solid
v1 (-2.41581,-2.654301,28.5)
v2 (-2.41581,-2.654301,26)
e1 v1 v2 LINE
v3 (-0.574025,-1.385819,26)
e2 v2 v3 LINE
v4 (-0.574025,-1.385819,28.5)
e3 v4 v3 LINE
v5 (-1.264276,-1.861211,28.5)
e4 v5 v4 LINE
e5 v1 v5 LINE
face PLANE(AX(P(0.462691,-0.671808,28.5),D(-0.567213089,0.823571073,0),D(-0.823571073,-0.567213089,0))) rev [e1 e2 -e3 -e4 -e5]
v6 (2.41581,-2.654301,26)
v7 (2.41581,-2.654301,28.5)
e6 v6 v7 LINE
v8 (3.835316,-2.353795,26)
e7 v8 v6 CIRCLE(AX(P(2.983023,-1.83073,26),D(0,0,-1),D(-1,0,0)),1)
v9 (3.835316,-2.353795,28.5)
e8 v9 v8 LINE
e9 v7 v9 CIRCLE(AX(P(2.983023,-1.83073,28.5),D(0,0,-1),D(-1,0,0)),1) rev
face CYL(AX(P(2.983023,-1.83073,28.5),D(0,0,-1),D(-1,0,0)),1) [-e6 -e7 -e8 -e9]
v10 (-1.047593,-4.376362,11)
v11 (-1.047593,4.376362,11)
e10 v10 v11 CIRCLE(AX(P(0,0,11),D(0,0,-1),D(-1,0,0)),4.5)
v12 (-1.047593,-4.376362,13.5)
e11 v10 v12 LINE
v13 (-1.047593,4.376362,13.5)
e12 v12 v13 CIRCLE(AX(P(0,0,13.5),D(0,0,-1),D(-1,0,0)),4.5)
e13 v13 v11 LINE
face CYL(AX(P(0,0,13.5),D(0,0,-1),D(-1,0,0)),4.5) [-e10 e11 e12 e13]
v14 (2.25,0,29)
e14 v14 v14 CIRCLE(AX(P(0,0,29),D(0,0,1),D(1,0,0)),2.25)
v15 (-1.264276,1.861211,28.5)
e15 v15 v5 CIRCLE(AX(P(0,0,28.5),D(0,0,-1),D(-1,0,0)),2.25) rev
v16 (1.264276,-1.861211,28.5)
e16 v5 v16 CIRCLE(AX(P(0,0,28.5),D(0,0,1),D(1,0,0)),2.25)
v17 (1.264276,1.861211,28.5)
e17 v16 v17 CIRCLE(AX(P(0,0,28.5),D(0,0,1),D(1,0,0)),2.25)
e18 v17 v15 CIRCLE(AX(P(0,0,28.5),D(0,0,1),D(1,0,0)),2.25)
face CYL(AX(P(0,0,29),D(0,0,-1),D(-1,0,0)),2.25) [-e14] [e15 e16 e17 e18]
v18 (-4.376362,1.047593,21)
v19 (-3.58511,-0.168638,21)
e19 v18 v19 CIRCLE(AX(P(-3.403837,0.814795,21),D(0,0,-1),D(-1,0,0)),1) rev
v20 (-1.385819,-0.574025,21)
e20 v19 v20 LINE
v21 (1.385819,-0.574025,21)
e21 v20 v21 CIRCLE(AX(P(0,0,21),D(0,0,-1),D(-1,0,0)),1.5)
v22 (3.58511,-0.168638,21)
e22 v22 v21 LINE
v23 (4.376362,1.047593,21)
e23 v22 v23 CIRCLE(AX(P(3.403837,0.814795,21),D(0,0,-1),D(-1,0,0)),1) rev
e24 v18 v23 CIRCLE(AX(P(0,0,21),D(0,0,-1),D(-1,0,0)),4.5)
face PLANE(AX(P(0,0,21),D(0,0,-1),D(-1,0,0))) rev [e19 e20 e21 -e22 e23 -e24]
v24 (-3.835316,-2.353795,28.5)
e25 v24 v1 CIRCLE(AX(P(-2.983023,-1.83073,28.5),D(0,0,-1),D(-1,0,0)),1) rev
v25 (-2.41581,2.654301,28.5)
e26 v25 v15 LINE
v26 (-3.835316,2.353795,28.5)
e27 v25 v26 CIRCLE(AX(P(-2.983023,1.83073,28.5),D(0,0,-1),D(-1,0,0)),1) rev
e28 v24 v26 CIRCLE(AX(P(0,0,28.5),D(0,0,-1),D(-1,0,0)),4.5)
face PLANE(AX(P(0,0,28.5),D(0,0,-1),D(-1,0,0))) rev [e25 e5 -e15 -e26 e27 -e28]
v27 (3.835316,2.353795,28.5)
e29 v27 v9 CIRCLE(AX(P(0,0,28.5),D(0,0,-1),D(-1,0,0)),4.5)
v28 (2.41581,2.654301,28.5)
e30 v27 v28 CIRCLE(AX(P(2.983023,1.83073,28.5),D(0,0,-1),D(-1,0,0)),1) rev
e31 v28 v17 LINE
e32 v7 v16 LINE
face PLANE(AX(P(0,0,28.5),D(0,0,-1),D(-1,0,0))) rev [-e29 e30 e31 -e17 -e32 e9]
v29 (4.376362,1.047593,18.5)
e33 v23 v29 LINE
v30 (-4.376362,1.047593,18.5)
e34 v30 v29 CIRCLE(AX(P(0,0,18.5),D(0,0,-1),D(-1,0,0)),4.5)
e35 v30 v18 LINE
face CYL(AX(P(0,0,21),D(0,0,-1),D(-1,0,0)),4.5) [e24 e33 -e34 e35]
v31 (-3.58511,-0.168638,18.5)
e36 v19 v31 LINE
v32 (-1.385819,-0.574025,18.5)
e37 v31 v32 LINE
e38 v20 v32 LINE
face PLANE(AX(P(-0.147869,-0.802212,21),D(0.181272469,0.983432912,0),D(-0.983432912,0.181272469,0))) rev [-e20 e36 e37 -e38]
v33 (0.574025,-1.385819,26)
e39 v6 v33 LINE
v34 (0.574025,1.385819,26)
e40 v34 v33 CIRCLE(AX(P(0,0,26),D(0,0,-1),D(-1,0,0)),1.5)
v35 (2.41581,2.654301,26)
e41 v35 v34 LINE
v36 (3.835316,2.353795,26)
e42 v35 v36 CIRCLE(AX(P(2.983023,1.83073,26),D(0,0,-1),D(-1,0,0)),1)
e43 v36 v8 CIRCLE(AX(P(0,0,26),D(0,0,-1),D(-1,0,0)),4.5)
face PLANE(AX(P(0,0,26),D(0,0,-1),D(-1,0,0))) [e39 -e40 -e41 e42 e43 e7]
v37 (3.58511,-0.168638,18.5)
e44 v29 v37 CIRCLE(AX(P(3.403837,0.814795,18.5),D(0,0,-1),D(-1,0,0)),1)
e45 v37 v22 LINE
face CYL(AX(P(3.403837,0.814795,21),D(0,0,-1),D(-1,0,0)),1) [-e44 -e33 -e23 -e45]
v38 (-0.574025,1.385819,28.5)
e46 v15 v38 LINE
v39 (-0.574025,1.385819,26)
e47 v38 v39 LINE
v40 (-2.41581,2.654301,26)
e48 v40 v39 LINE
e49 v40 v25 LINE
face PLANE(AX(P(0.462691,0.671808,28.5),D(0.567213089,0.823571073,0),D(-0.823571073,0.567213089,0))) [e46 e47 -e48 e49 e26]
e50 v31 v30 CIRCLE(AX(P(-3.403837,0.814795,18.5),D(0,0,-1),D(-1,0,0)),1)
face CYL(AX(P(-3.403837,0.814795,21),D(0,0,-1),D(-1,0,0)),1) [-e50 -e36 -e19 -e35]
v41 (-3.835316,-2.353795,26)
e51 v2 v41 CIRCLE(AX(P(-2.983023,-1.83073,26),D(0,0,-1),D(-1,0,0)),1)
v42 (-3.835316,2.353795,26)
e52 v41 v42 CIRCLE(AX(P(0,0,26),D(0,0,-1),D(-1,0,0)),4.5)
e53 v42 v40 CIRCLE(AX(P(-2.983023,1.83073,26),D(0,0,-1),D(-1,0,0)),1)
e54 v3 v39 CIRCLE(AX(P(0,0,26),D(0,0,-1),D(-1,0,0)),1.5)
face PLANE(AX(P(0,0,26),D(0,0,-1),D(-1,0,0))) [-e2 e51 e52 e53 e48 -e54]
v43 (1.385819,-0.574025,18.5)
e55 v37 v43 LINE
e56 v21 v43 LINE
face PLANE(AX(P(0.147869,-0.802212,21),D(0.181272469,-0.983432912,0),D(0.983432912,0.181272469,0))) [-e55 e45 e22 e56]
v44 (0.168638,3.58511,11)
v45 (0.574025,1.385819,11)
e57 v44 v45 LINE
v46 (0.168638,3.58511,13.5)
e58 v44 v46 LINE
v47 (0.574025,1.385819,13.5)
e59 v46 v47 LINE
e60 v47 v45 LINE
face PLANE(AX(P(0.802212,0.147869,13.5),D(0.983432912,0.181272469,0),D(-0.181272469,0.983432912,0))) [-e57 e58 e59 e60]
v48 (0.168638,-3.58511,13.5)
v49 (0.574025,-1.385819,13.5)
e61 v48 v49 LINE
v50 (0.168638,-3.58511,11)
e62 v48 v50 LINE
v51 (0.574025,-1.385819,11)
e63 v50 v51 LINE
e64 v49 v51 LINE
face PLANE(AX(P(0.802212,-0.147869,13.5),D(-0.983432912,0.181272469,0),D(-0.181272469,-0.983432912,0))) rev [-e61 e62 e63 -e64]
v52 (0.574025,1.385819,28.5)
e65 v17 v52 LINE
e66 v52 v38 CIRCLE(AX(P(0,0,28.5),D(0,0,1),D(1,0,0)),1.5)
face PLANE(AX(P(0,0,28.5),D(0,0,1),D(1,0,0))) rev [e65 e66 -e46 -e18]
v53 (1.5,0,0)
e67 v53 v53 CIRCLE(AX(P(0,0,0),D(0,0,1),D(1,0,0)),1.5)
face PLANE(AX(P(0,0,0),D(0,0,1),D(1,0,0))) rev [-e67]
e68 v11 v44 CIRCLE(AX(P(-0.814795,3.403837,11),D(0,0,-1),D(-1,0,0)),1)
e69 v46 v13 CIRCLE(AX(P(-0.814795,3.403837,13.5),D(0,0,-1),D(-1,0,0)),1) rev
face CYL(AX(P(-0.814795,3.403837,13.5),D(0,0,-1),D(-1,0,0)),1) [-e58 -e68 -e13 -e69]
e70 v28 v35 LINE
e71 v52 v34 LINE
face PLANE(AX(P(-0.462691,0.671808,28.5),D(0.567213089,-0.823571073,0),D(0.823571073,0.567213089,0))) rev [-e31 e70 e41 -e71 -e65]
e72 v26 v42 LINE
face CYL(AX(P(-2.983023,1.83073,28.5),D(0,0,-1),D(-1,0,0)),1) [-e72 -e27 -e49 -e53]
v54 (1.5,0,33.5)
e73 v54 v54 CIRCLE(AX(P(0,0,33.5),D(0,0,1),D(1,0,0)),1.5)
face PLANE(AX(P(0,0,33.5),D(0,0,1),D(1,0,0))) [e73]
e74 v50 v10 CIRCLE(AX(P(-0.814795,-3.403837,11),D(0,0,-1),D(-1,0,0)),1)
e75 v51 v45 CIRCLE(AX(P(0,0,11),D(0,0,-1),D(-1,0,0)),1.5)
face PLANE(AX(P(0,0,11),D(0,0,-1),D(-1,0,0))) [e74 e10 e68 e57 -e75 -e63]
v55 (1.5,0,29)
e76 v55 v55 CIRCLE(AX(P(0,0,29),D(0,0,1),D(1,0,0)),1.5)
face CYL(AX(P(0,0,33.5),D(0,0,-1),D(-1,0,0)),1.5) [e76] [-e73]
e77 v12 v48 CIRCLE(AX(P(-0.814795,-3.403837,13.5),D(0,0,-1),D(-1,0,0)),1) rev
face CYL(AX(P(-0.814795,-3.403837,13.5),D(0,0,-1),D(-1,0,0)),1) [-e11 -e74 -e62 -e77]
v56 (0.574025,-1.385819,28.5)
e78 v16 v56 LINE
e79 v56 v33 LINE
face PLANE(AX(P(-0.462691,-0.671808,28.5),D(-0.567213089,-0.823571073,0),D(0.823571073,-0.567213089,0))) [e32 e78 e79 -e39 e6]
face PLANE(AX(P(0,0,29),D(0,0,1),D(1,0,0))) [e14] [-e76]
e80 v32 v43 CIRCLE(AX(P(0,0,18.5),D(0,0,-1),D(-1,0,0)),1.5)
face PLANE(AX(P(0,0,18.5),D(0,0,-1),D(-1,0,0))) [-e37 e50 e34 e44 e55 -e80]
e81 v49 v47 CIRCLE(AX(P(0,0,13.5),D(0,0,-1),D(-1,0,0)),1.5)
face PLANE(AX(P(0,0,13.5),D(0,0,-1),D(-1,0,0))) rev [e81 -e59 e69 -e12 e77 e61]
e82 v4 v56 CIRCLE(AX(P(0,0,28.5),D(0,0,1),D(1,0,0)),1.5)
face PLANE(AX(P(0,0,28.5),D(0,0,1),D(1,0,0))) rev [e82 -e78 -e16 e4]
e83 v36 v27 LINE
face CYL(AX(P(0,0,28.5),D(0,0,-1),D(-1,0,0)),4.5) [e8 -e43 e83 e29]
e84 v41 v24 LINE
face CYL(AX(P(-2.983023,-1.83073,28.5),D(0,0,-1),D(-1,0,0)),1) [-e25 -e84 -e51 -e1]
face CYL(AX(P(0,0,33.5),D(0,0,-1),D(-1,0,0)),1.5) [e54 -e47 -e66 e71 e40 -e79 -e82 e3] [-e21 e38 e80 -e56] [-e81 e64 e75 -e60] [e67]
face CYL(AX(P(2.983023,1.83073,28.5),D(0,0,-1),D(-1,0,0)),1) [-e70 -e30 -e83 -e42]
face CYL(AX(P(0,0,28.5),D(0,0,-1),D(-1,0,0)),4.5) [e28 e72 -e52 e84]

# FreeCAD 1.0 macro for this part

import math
import FreeCAD as App
import Part
import Sketcher
from FreeCAD import Vector


def edges_at(feature, points):
    """Names of the edges that pass closest to the given points."""
    edges = feature.Shape.Edges
    near = lambda p: min(range(len(edges)), key=lambda i: edges[i].distToShape(Part.Vertex(*p))[0])
    return sorted({f"Edge{near(p) + 1}" for p in points})

doc = App.newDocument("Part")
body = doc.addObject("PartDesign::Body", "Body")

# Sketch on XY plane
sketch1 = body.newObject("Sketcher::SketchObject", "Sketch")
sketch1.AttachmentSupport = (doc.getObject("XY_Plane"), [""])
sketch1.MapMode = "FlatFace"
sketch1.addGeometry(Part.Circle(Vector(0, 0, 0), Vector(0, 0, 1), 1.5), False)
sketch1.addConstraint([
    Sketcher.Constraint("Coincident", 0, 3, -1, 1),
    Sketcher.Constraint("Diameter", 0, 3.0),
])
pad1 = body.newObject("PartDesign::Pad", "Pad")
pad1.Profile = sketch1
pad1.Length = 33.5

# Sketch on XY plane
sketch2 = body.newObject("Sketcher::SketchObject", "Sketch001")
sketch2.AttachmentSupport = (doc.getObject("XY_Plane"), [""])
sketch2.MapMode = "FlatFace"
sketch2.AttachmentOffset = App.Placement(Vector(0, 0, 11), App.Rotation())
sketch2.addGeometry([
    Part.ArcOfCircle(Part.Circle(Vector(0, 0, 0), Vector(0, 0, 1), 4.5), math.radians(90), math.radians(180)),  # 0
    Part.LineSegment(Vector(0, 4.5, 0), Vector(0.6, 1.4, 0)),  # 1
    Part.ArcOfCircle(Part.Circle(Vector(0, 0, 0), Vector(0, 0, 1), 1.5), math.radians(68), math.radians(180)),  # 2
    Part.ArcOfCircle(Part.Circle(Vector(0, 0, 0), Vector(0, 0, 1), 1.5), math.radians(180), math.radians(292)),  # 3
    Part.LineSegment(Vector(0.6, -1.4, 0), Vector(0, -4.5, 0)),  # 4
    Part.ArcOfCircle(Part.Circle(Vector(0, 0, 0), Vector(0, 0, 1), 4.5), math.radians(-180), math.radians(-90)),  # 5
], False)
sketch2.addConstraint([
    Sketcher.Constraint("Coincident", 0, 1, 1, 1),
    Sketcher.Constraint("Coincident", 1, 2, 2, 1),
    Sketcher.Constraint("Tangent", 2, 2, 3, 1),
    Sketcher.Constraint("Coincident", 3, 2, 4, 1),
    Sketcher.Constraint("Coincident", 4, 2, 5, 2),
    Sketcher.Constraint("Tangent", 5, 1, 0, 2),
    Sketcher.Constraint("Coincident", 0, 3, -1, 1),
    Sketcher.Constraint("Coincident", 2, 3, -1, 1),
    Sketcher.Constraint("Equal", 2, 3),
    Sketcher.Constraint("Equal", 0, 5),
    Sketcher.Constraint("PointOnObject", 0, 1, -2),
    Sketcher.Constraint("PointOnObject", 2, 2, -1),
    Sketcher.Constraint("PointOnObject", 4, 2, -2),
    Sketcher.Constraint("PointOnObject", 5, 1, -1),
    Sketcher.Constraint("Vertical", 1, 2, 3, 2),
    Sketcher.Constraint("Radius", 0, 4.5),
    Sketcher.Constraint("Radius", 2, 1.5),
    Sketcher.Constraint("DistanceY", -1, 1, 1, 2, 1.385819),
])
pad2 = body.newObject("PartDesign::Pad", "Pad001")
pad2.Profile = sketch2
pad2.Length = 2.5

# Sketch on XY plane
sketch3 = body.newObject("Sketcher::SketchObject", "Sketch002")
sketch3.AttachmentSupport = (doc.getObject("XY_Plane"), [""])
sketch3.MapMode = "FlatFace"
sketch3.AttachmentOffset = App.Placement(Vector(0, 0, 18.5), App.Rotation())
sketch3.addGeometry([
    Part.ArcOfCircle(Part.Circle(Vector(0, 0, 0), Vector(0, 0, 1), 4.5), math.radians(0), math.radians(180)),  # 0
    Part.LineSegment(Vector(4.5, 0, 0), Vector(1.4, -0.6, 0)),  # 1
    Part.ArcOfCircle(Part.Circle(Vector(0, 0, 0), Vector(0, 0, 1), 1.5), math.radians(-23), math.radians(180)),  # 2
    Part.ArcOfCircle(Part.Circle(Vector(0, 0, 0), Vector(0, 0, 1), 1.5), math.radians(180), math.radians(203)),  # 3
    Part.LineSegment(Vector(-1.4, -0.6, 0), Vector(-4.5, 0, 0)),  # 4
], False)
sketch3.addConstraint([
    Sketcher.Constraint("Coincident", 0, 1, 1, 1),
    Sketcher.Constraint("Coincident", 1, 2, 2, 1),
    Sketcher.Constraint("Tangent", 2, 2, 3, 1),
    Sketcher.Constraint("Coincident", 3, 2, 4, 1),
    Sketcher.Constraint("Coincident", 4, 2, 0, 2),
    Sketcher.Constraint("Coincident", 0, 3, -1, 1),
    Sketcher.Constraint("Coincident", 2, 3, -1, 1),
    Sketcher.Constraint("Equal", 2, 3),
    Sketcher.Constraint("PointOnObject", 0, 1, -1),
    Sketcher.Constraint("PointOnObject", 2, 2, -1),
    Sketcher.Constraint("PointOnObject", 4, 2, -1),
    Sketcher.Constraint("Horizontal", 1, 2, 3, 2),
    Sketcher.Constraint("Radius", 0, 4.5),
    Sketcher.Constraint("Radius", 2, 1.5),
    Sketcher.Constraint("DistanceX", -1, 1, 1, 2, 1.385819),
])
pad3 = body.newObject("PartDesign::Pad", "Pad002")
pad3.Profile = sketch3
pad3.Length = 2.5

# Sketch on XY plane
sketch4 = body.newObject("Sketcher::SketchObject", "Sketch003")
sketch4.AttachmentSupport = (doc.getObject("XY_Plane"), [""])
sketch4.MapMode = "FlatFace"
sketch4.AttachmentOffset = App.Placement(Vector(0, 0, 26), App.Rotation())
sketch4.addGeometry([
    Part.LineSegment(Vector(0.6, 1.4, 0), Vector(3.2, 3.2, 0)),  # 0
    Part.ArcOfCircle(Part.Circle(Vector(0, 0, 0), Vector(0, 0, 1), 4.5), math.radians(-45), math.radians(45)),  # 1
    Part.LineSegment(Vector(3.2, -3.2, 0), Vector(0.6, -1.4, 0)),  # 2
    Part.ArcOfCircle(Part.Circle(Vector(0, 0, 0), Vector(0, 0, 1), 1.5), math.radians(-67), math.radians(67)),  # 3
    Part.ArcOfCircle(Part.Circle(Vector(0, 0, 0), Vector(0, 0, 1), 4.5), math.radians(135), math.radians(180)),  # 4
    Part.LineSegment(Vector(-3.2, 3.2, 0), Vector(-0.6, 1.4, 0)),  # 5
    Part.ArcOfCircle(Part.Circle(Vector(0, 0, 0), Vector(0, 0, 1), 1.5), math.radians(113), math.radians(180)),  # 6
    Part.ArcOfCircle(Part.Circle(Vector(0, 0, 0), Vector(0, 0, 1), 1.5), math.radians(-180), math.radians(-113)),  # 7
    Part.LineSegment(Vector(-0.6, -1.4, 0), Vector(-3.2, -3.2, 0)),  # 8
    Part.ArcOfCircle(Part.Circle(Vector(0, 0, 0), Vector(0, 0, 1), 4.5), math.radians(180), math.radians(225)),  # 9
], False)
sketch4.addConstraint([
    Sketcher.Constraint("Coincident", 0, 2, 1, 2),
    Sketcher.Constraint("Coincident", 1, 1, 2, 1),
    Sketcher.Constraint("Coincident", 2, 2, 3, 1),
    Sketcher.Constraint("Coincident", 3, 2, 0, 1),
    Sketcher.Constraint("Coincident", 4, 1, 5, 1),
    Sketcher.Constraint("Coincident", 5, 2, 6, 1),
    Sketcher.Constraint("Tangent", 6, 2, 7, 1),
    Sketcher.Constraint("Coincident", 7, 2, 8, 1),
    Sketcher.Constraint("Coincident", 8, 2, 9, 2),
    Sketcher.Constraint("Tangent", 9, 1, 4, 2),
    Sketcher.Constraint("Coincident", 1, 3, -1, 1),
    Sketcher.Constraint("Coincident", 3, 3, -1, 1),
    Sketcher.Constraint("Coincident", 4, 3, -1, 1),
    Sketcher.Constraint("Coincident", 6, 3, -1, 1),
    Sketcher.Constraint("Equal", 1, 4),
    Sketcher.Constraint("Equal", 3, 6),
    Sketcher.Constraint("Equal", 6, 7),
    Sketcher.Constraint("Equal", 4, 9),
    Sketcher.Constraint("PointOnObject", 6, 2, -1),
    Sketcher.Constraint("PointOnObject", 9, 1, -1),
    Sketcher.Constraint("Parallel", 2, 5),
    Sketcher.Constraint("Parallel", 0, 8),
    Sketcher.Constraint("Horizontal", 0, 2, 4, 1),
    Sketcher.Constraint("Horizontal", 3, 2, 5, 2),
    Sketcher.Constraint("Horizontal", 2, 2, 7, 2),
    Sketcher.Constraint("Vertical", 0, 2, 1, 1),
    Sketcher.Constraint("Radius", 1, 4.5),
    Sketcher.Constraint("Radius", 3, 1.5),
    Sketcher.Constraint("DistanceX", -1, 1, 0, 2, 3.181981),
    Sketcher.Constraint("DistanceY", 2, 2, -1, 1, 1.385819),
])
pad4 = body.newObject("PartDesign::Pad", "Pad003")
pad4.Profile = sketch4
pad4.Length = 2.5
doc.recompute()

fillet = body.newObject("PartDesign::Fillet", "Fillet")
fillet.Base = (pad4, edges_at(pad4, [
    (4.5, 0, 19.75),
    (-4.5, 0, 19.75),
    (3.182, -3.182, 27.25),
    (3.182, 3.182, 27.25),
    (-3.182, 3.182, 27.25),
    (-3.182, -3.182, 27.25),
    (0, 4.5, 12.25),
    (0, -4.5, 12.25),
]))
fillet.Radius = 1

# Sketch on XY plane
sketch5 = body.newObject("Sketcher::SketchObject", "Sketch004")
sketch5.AttachmentSupport = (doc.getObject("XY_Plane"), [""])
sketch5.MapMode = "FlatFace"
sketch5.AttachmentOffset = App.Placement(Vector(0, 0, 28.5), App.Rotation())
sketch5.addGeometry(Part.Circle(Vector(0, 0, 0), Vector(0, 0, 1), 2.2), False)
sketch5.addConstraint([
    Sketcher.Constraint("Coincident", 0, 3, -1, 1),
    Sketcher.Constraint("Diameter", 0, 4.5),
])
pad5 = body.newObject("PartDesign::Pad", "Pad004")
pad5.Profile = sketch5
pad5.Length = 0.5

doc.recompute()
